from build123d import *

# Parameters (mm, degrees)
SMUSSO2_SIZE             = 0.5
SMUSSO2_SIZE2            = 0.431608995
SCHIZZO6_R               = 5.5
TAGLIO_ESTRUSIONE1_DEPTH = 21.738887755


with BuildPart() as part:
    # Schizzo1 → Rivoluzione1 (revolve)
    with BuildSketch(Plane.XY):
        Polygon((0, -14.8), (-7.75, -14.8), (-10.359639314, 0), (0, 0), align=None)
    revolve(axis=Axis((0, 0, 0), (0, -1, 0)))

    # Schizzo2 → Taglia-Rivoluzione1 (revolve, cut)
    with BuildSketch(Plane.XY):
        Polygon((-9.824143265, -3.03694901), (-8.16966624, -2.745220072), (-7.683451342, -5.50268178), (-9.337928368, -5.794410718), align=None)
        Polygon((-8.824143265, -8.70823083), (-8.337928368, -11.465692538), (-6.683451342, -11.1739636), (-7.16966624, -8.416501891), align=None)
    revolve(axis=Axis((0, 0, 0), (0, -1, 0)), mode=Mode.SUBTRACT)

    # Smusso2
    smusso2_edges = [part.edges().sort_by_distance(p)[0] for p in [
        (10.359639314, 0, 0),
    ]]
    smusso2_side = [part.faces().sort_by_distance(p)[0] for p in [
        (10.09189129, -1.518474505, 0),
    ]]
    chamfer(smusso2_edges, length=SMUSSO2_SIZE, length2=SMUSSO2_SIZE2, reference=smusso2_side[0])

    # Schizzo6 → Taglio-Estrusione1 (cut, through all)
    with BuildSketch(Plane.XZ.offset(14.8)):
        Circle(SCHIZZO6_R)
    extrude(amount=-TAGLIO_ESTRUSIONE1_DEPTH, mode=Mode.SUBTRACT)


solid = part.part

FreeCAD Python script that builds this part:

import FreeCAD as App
import Part
import Sketcher

V = App.Vector
Q = App.Units.Quantity


def edges_at(feature, points):
    """Names of the edges that pass closest to the given points."""
    edges = feature.Shape.Edges
    near = lambda p: min(range(len(edges)), key=lambda i: edges[i].distToShape(Part.Vertex(*p))[0])
    return sorted({f"Edge{near(p) + 1}" for p in points})


def add_polygon(sketch, points):
    """Adds a closed chain of lines whose ends are joined by coincident constraints."""
    first, n = sketch.GeometryCount, len(points)
    for a, b in zip(points, points[1:] + points[:1]):
        sketch.addGeometry(Part.LineSegment(App.Vector(*a, 0), App.Vector(*b, 0)), False)
    for i in range(n):
        sketch.addConstraint(Sketcher.Constraint("Coincident", first + i, 2, first + (i + 1) % n, 1))

doc = App.newDocument("Part")
body = doc.addObject("PartDesign::Body", "Body")

sketch1 = body.newObject("Sketcher::SketchObject", "Sketch")
sketch1.AttachmentSupport = (doc.getObject("XY_Plane"), [""])
sketch1.MapMode = "FlatFace"
add_polygon(sketch1, [(-8, -15), (0, -15), (0, 0), (-10, 0)])
sketch1.addConstraint([
    Sketcher.Constraint("Horizontal", 0),
    Sketcher.Constraint("Vertical", 1),
    Sketcher.Constraint("Horizontal", 2),
    Sketcher.Constraint("Coincident", 1, 2, -1, 1),
    Sketcher.Constraint("Angle", 3, Q("-80 deg")),
    Sketcher.Constraint("DistanceY", 1, 1, 1, 2, 14.8),
    Sketcher.Constraint("DistanceX", 0, 1, 0, 2, 7.75),
])
revolution = body.newObject("PartDesign::Revolution", "Revolution")
revolution.Profile = sketch1
revolution.ReferenceAxis = (sketch1, ["V_Axis"])
revolution.Angle = 360

sketch2 = body.newObject("Sketcher::SketchObject", "Sketch001")
sketch2.AttachmentSupport = (doc.getObject("XY_Plane"), [""])
sketch2.MapMode = "FlatFace"
add_polygon(sketch2, [(-8.2, -2.7), (-9.8, -3), (-9.3, -5.8), (-7.7, -5.5)])
add_polygon(sketch2, [(-8.8, -8.7), (-8.3, -11.5), (-6.7, -11.2), (-7.2, -8.4)])
sketch2.addConstraint([
    Sketcher.Constraint("Perpendicular", 0, 1),
    Sketcher.Constraint("Perpendicular", 1, 2),
    Sketcher.Constraint("Perpendicular", 2, 3),
    Sketcher.Constraint("Parallel", 3, 4),
    Sketcher.Constraint("Perpendicular", 4, 5),
    Sketcher.Constraint("Perpendicular", 5, 6),
    Sketcher.Constraint("Perpendicular", 6, 7),
    Sketcher.Constraint("Equal", 3, 4),
    Sketcher.Constraint("Equal", 2, 5),
    Sketcher.Constraint("Angle", 0, Q("-170 deg")),
    Sketcher.Constraint("DistanceX", 1, 2, 4, 2, 1.0),
    Sketcher.Constraint("Distance", 1, 2.8),
    Sketcher.Constraint("Distance", 0, 1.68),
    Sketcher.Constraint("DistanceY", 6, 2, -1, 1, 8.416502),
    Sketcher.Constraint("DistanceY", 0, 2, -1, 1, 3.036949),
    Sketcher.Constraint("DistanceX", 1, 2, -1, 1, 9.337928),
])
groove = body.newObject("PartDesign::Groove", "Groove")
groove.Profile = sketch2
groove.ReferenceAxis = (sketch2, ["V_Axis"])
groove.Angle = 360
doc.recompute()

chamfer = body.newObject("PartDesign::Chamfer", "Chamfer")
chamfer.Base = (groove, edges_at(groove, [(10.36, 0, 0)]))
chamfer.ChamferType = "Two distances"
chamfer.Size = 0.5
chamfer.Size2 = 0.431609

sketch3 = body.newObject("Sketcher::SketchObject", "Sketch002")
sketch3.AttachmentSupport = (doc.getObject("XZ_Plane"), [""])
sketch3.MapMode = "FlatFace"
sketch3.AttachmentOffset = App.Placement(V(0, 0, 14.8), App.Rotation())
sketch3.addGeometry(Part.Circle(V(0, 0, 0), V(0, 0, 1), 6), False)
sketch3.addConstraint([
    Sketcher.Constraint("Coincident", 0, 3, -1, 1),
    Sketcher.Constraint("Diameter", 0, 11.0),
])
pocket1 = body.newObject("PartDesign::Pocket", "Pocket")
pocket1.Profile = sketch3
pocket1.Type = "ThroughAll"

doc.recompute()
